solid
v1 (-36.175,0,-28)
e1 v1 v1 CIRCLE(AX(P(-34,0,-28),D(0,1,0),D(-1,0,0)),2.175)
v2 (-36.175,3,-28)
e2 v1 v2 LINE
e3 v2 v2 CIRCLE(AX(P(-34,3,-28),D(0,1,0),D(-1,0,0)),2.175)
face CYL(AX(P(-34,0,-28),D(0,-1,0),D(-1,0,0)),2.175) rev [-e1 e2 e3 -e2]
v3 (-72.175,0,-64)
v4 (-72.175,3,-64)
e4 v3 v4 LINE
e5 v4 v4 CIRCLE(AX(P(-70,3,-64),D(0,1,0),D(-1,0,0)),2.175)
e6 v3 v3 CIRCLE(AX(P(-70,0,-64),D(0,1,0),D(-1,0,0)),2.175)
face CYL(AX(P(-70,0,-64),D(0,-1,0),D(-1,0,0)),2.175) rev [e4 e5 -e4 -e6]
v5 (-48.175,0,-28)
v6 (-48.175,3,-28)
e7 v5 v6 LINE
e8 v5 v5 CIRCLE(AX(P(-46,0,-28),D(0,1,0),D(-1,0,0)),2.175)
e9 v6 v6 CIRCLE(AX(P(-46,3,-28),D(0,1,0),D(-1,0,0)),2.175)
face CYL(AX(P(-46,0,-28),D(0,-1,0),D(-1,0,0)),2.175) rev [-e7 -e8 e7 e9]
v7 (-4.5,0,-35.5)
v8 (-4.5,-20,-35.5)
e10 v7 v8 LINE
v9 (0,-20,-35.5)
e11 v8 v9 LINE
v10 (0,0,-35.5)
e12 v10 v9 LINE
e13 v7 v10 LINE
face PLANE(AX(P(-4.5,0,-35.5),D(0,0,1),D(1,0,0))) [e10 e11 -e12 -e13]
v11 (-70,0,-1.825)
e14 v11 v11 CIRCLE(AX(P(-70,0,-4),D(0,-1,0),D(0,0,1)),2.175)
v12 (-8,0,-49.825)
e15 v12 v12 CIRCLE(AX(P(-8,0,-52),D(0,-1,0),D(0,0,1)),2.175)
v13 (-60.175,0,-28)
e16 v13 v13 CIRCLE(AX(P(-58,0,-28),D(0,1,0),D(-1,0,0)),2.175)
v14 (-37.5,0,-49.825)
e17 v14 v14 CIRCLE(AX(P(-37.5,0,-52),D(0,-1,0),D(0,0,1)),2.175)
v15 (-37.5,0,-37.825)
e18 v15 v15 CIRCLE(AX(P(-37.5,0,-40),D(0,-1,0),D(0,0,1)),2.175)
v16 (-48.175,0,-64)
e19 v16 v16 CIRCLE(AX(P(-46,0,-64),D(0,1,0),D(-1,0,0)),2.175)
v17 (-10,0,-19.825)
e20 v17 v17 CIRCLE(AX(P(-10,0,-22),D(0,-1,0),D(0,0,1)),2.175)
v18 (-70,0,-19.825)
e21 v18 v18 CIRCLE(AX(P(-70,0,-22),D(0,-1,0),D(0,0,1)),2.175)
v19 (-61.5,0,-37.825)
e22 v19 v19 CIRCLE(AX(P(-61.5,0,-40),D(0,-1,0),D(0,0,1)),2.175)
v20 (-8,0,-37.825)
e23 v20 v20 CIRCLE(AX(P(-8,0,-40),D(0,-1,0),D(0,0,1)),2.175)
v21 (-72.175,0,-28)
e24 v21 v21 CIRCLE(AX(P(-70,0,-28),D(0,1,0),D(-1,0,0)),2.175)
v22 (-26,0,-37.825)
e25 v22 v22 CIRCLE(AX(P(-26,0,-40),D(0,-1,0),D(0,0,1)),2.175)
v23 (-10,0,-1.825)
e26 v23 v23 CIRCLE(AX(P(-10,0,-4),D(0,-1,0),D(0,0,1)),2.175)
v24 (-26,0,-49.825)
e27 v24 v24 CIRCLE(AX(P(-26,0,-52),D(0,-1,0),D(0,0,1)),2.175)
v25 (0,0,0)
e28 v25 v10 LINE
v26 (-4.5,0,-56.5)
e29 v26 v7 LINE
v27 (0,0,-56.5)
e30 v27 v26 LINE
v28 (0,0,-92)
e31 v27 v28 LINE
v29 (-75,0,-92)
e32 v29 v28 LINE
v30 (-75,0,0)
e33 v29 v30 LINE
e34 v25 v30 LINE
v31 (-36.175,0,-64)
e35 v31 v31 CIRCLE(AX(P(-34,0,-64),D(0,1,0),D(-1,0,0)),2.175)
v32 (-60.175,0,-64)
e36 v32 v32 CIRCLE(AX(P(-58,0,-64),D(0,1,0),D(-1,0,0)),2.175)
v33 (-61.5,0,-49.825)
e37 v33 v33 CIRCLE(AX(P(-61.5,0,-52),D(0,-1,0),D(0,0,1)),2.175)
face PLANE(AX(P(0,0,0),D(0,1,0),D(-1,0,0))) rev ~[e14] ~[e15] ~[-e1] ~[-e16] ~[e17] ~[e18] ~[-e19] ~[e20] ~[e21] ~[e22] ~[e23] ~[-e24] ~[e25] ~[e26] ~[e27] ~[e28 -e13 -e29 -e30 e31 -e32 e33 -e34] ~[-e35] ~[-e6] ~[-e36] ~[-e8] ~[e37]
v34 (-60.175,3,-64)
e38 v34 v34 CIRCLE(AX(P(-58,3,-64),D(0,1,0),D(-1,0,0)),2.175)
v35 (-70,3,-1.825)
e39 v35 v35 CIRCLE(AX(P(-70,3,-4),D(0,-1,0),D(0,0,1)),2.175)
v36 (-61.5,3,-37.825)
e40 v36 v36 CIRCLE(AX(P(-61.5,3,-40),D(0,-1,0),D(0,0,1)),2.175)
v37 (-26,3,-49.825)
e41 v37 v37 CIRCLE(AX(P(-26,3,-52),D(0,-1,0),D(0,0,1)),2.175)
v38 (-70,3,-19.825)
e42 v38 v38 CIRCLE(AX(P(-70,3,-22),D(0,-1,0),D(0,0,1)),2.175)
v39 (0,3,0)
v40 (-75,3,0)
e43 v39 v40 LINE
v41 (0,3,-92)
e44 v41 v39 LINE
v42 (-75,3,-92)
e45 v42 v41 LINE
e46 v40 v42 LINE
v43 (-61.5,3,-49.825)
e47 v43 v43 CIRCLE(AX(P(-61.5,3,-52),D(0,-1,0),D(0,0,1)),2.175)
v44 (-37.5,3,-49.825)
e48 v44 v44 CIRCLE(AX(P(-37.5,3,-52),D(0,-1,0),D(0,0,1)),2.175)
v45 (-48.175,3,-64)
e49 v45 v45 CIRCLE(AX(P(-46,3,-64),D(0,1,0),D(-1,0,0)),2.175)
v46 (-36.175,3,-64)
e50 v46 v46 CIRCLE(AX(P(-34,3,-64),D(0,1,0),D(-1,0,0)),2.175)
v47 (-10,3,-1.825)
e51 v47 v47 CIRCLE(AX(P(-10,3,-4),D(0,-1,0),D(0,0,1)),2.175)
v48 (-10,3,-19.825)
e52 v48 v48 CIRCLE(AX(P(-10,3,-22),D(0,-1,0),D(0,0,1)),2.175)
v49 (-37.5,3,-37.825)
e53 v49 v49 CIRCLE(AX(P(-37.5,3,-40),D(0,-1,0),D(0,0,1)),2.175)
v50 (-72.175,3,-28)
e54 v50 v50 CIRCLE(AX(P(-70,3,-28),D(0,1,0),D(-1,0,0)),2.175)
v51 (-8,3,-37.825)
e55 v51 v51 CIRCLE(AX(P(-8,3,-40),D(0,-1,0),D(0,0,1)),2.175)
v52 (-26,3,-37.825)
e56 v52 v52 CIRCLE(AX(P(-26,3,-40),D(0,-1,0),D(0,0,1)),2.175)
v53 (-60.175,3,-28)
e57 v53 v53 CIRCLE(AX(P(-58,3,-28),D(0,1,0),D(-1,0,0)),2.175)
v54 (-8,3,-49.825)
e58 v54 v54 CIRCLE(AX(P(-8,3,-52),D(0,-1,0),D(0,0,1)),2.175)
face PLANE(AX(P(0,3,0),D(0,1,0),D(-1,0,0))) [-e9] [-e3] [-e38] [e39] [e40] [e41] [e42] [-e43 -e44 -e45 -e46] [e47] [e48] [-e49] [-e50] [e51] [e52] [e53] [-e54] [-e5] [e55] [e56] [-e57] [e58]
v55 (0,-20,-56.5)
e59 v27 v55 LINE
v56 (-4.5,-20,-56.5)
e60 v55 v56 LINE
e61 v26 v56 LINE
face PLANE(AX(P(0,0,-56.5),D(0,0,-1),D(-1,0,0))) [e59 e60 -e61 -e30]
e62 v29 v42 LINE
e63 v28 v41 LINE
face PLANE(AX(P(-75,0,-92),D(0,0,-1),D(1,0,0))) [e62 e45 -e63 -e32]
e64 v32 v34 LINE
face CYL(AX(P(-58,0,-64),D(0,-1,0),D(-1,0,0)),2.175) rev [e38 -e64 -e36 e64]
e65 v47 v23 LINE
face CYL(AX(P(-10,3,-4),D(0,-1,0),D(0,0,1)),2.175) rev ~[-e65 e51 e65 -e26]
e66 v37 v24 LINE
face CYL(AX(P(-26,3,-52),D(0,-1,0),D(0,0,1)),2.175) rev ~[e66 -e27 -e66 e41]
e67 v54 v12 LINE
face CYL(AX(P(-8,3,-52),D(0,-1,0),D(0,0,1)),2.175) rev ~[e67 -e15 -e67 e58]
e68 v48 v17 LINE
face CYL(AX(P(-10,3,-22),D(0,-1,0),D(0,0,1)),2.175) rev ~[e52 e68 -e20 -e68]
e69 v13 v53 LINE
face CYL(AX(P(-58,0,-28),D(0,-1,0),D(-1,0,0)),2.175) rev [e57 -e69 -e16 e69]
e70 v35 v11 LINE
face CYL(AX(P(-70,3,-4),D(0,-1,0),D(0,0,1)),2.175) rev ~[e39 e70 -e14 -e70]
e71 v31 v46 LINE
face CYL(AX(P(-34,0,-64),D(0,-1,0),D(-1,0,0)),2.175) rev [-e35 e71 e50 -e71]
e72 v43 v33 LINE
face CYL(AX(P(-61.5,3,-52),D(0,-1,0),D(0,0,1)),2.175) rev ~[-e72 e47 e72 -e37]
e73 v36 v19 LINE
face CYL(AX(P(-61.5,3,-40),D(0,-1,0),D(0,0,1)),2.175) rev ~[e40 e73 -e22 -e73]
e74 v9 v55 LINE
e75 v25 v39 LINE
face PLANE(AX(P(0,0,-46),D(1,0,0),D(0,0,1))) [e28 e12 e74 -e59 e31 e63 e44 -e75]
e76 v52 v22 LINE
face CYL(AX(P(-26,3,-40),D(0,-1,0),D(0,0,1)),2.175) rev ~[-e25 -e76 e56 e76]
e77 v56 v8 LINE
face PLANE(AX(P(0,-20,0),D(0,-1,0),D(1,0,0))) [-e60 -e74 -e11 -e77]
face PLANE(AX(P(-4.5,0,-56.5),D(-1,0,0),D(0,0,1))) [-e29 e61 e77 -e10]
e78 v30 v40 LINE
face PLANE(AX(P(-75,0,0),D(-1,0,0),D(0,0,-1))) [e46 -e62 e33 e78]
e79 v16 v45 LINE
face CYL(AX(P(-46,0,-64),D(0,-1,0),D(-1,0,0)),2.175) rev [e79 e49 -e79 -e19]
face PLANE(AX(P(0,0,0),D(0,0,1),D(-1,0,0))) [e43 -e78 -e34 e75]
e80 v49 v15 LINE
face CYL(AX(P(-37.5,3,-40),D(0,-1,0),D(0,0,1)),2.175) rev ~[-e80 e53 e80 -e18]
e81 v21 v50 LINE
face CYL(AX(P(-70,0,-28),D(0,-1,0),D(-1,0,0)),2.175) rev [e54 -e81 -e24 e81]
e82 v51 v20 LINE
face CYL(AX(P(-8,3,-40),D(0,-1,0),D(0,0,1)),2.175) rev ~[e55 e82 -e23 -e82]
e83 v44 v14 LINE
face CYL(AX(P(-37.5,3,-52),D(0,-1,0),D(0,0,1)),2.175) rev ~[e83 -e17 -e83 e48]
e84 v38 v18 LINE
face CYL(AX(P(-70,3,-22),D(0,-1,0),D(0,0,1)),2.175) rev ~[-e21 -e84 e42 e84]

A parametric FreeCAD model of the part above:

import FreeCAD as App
import Part
import Sketcher

V = App.Vector


def add_polygon(sketch, points):
    """Adds a closed chain of lines whose ends are joined by coincident constraints."""
    first, n = sketch.GeometryCount, len(points)
    for a, b in zip(points, points[1:] + points[:1]):
        sketch.addGeometry(Part.LineSegment(App.Vector(*a, 0), App.Vector(*b, 0)), False)
    for i in range(n):
        sketch.addConstraint(Sketcher.Constraint("Coincident", first + i, 2, first + (i + 1) % n, 1))

doc = App.newDocument("Part")
body = doc.addObject("PartDesign::Body", "Body")

# Sketch on XZ plane
sketch1 = doc.addObject("Sketcher::SketchObject", "Sketch")
body.addObject(sketch1)
sketch1.AttachmentSupport = (doc.XZ_Plane, [""])
sketch1.MapMode = "FlatFace"
add_polygon(sketch1, [(-75, 0), (0, 0), (0, -92), (-75, -92)])  # lines 0-3
sketch1.addGeometry(Part.Circle(V(-34, -28, 0), V(0, 0, 1), 2.2), False)  # 4
sketch1.addGeometry(Part.Circle(V(-46, -28, 0), V(0, 0, 1), 2.2), False)  # 5
sketch1.addGeometry(Part.Circle(V(-58, -28, 0), V(0, 0, 1), 2.2), False)  # 6
sketch1.addGeometry(Part.Circle(V(-70, -28, 0), V(0, 0, 1), 2.2), False)  # 7
sketch1.addGeometry(Part.Circle(V(-70, -64, 0), V(0, 0, 1), 2.2), False)  # 8
sketch1.addGeometry(Part.Circle(V(-34, -64, 0), V(0, 0, 1), 2.2), False)  # 9
sketch1.addGeometry(Part.Circle(V(-46, -64, 0), V(0, 0, 1), 2.2), False)  # 10
sketch1.addGeometry(Part.Circle(V(-58, -64, 0), V(0, 0, 1), 2.2), False)  # 11
sketch1.addConstraint(Sketcher.Constraint("Horizontal", 0))
sketch1.addConstraint(Sketcher.Constraint("Vertical", 1))
sketch1.addConstraint(Sketcher.Constraint("Horizontal", 2))
sketch1.addConstraint(Sketcher.Constraint("Vertical", 3))
sketch1.addConstraint(Sketcher.Constraint("Coincident", 0, 2, -1, 1))
sketch1.addConstraint(Sketcher.Constraint("Equal", 4, 5))
sketch1.addConstraint(Sketcher.Constraint("Equal", 5, 6))
sketch1.addConstraint(Sketcher.Constraint("Equal", 6, 7))
sketch1.addConstraint(Sketcher.Constraint("Equal", 7, 8))
sketch1.addConstraint(Sketcher.Constraint("Equal", 8, 9))
sketch1.addConstraint(Sketcher.Constraint("Equal", 9, 10))
sketch1.addConstraint(Sketcher.Constraint("Equal", 10, 11))
sketch1.addConstraint(Sketcher.Constraint("Horizontal", 4, 3, 5, 3))
sketch1.addConstraint(Sketcher.Constraint("Horizontal", 5, 3, 6, 3))
sketch1.addConstraint(Sketcher.Constraint("Horizontal", 6, 3, 7, 3))
sketch1.addConstraint(Sketcher.Constraint("Horizontal", 8, 3, 9, 3))
sketch1.addConstraint(Sketcher.Constraint("Horizontal", 9, 3, 10, 3))
sketch1.addConstraint(Sketcher.Constraint("Horizontal", 10, 3, 11, 3))
sketch1.addConstraint(Sketcher.Constraint("Vertical", 7, 3, 8, 3))
sketch1.addConstraint(Sketcher.Constraint("Vertical", 4, 3, 9, 3))
sketch1.addConstraint(Sketcher.Constraint("Vertical", 5, 3, 10, 3))
sketch1.addConstraint(Sketcher.Constraint("Vertical", 6, 3, 11, 3))
sketch1.addConstraint(Sketcher.Constraint("Diameter", 4, 4.35))
sketch1.addConstraint(Sketcher.Constraint("DistanceX", 0, 1, 0, 2, 75.0))
sketch1.addConstraint(Sketcher.Constraint("DistanceY", 1, 2, 1, 1, 92.0))
sketch1.addConstraint(Sketcher.Constraint("DistanceX", 5, 3, 4, 3, 12.0))
sketch1.addConstraint(Sketcher.Constraint("DistanceX", 6, 3, 5, 3, 12.0))
sketch1.addConstraint(Sketcher.Constraint("DistanceX", 7, 3, 6, 3, 12.0))
sketch1.addConstraint(Sketcher.Constraint("DistanceX", 4, 3, -1, 1, 34.0))
sketch1.addConstraint(Sketcher.Constraint("DistanceY", 4, 3, -1, 1, 28.0))
sketch1.addConstraint(Sketcher.Constraint("DistanceY", 8, 3, -1, 1, 64.0))
pad1 = doc.addObject("PartDesign::Pad", "Pad")
body.addObject(pad1)
pad1.Profile = sketch1
pad1.Length = 3
pad1.Reversed = True

# Sketch on XZ plane
sketch2 = doc.addObject("Sketcher::SketchObject", "Sketch001")
body.addObject(sketch2)
sketch2.AttachmentSupport = (doc.XZ_Plane, [""])
sketch2.MapMode = "FlatFace"
add_polygon(sketch2, [(0, -56.5), (0, -35.5), (-4.5, -35.5), (-4.5, -56.5)])  # lines 0-3
sketch2.addConstraint(Sketcher.Constraint("Vertical", 0))
sketch2.addConstraint(Sketcher.Constraint("Horizontal", 1))
sketch2.addConstraint(Sketcher.Constraint("Vertical", 2))
sketch2.addConstraint(Sketcher.Constraint("Horizontal", 3))
sketch2.addConstraint(Sketcher.Constraint("PointOnObject", 0, 2, -2))
sketch2.addConstraint(Sketcher.Constraint("DistanceY", 0, 1, 0, 2, 21.0))
sketch2.addConstraint(Sketcher.Constraint("DistanceX", 1, 2, 1, 1, 4.5))
sketch2.addConstraint(Sketcher.Constraint("DistanceY", 0, 2, -1, 1, 35.5))
pad2 = doc.addObject("PartDesign::Pad", "Pad001")
body.addObject(pad2)
pad2.Profile = sketch2
pad2.Length = 20

# Sketch on XZ plane
sketch3 = doc.addObject("Sketcher::SketchObject", "Sketch002")
body.addObject(sketch3)
sketch3.AttachmentSupport = (doc.XZ_Plane, [""])
sketch3.MapMode = "FlatFace"
sketch3.AttachmentOffset = App.Placement(V(0, 0, -3), App.Rotation())
sketch3.addGeometry(Part.Circle(V(-70, -4, 0), V(0, 0, 1), 2.2), False)
sketch3.addGeometry(Part.Circle(V(-70, -22, 0), V(0, 0, 1), 2.2), False)
sketch3.addGeometry(Part.Circle(V(-61.5, -40, 0), V(0, 0, 1), 2.2), False)
sketch3.addGeometry(Part.Circle(V(-61.5, -52, 0), V(0, 0, 1), 2.2), False)
sketch3.addGeometry(Part.Circle(V(-37.5, -52, 0), V(0, 0, 1), 2.2), False)
sketch3.addGeometry(Part.Circle(V(-37.5, -40, 0), V(0, 0, 1), 2.2), False)
sketch3.addGeometry(Part.Circle(V(-26, -40, 0), V(0, 0, 1), 2.2), False)
sketch3.addGeometry(Part.Circle(V(-10, -22, 0), V(0, 0, 1), 2.2), False)
sketch3.addGeometry(Part.Circle(V(-10, -4, 0), V(0, 0, 1), 2.2), False)
sketch3.addGeometry(Part.Circle(V(-8, -40, 0), V(0, 0, 1), 2.2), False)
sketch3.addGeometry(Part.Circle(V(-26, -52, 0), V(0, 0, 1), 2.2), False)
sketch3.addGeometry(Part.Circle(V(-8, -52, 0), V(0, 0, 1), 2.2), False)
sketch3.addConstraint(Sketcher.Constraint("Equal", 0, 1))
sketch3.addConstraint(Sketcher.Constraint("Equal", 1, 2))
sketch3.addConstraint(Sketcher.Constraint("Equal", 2, 3))
sketch3.addConstraint(Sketcher.Constraint("Equal", 3, 4))
sketch3.addConstraint(Sketcher.Constraint("Equal", 4, 5))
sketch3.addConstraint(Sketcher.Constraint("Equal", 5, 6))
sketch3.addConstraint(Sketcher.Constraint("Equal", 6, 7))
sketch3.addConstraint(Sketcher.Constraint("Equal", 7, 8))
sketch3.addConstraint(Sketcher.Constraint("Equal", 8, 9))
sketch3.addConstraint(Sketcher.Constraint("Equal", 9, 10))
sketch3.addConstraint(Sketcher.Constraint("Equal", 10, 11))
sketch3.addConstraint(Sketcher.Constraint("Horizontal", 3, 3, 4, 3))
sketch3.addConstraint(Sketcher.Constraint("Horizontal", 2, 3, 5, 3))
sketch3.addConstraint(Sketcher.Constraint("Horizontal", 5, 3, 6, 3))
sketch3.addConstraint(Sketcher.Constraint("Horizontal", 1, 3, 7, 3))
sketch3.addConstraint(Sketcher.Constraint("Horizontal", 0, 3, 8, 3))
sketch3.addConstraint(Sketcher.Constraint("Horizontal", 6, 3, 9, 3))
sketch3.addConstraint(Sketcher.Constraint("Horizontal", 4, 3, 10, 3))
sketch3.addConstraint(Sketcher.Constraint("Horizontal", 10, 3, 11, 3))
sketch3.addConstraint(Sketcher.Constraint("Vertical", 0, 3, 1, 3))
sketch3.addConstraint(Sketcher.Constraint("Vertical", 2, 3, 3, 3))
sketch3.addConstraint(Sketcher.Constraint("Vertical", 4, 3, 5, 3))
sketch3.addConstraint(Sketcher.Constraint("Vertical", 7, 3, 8, 3))
sketch3.addConstraint(Sketcher.Constraint("Vertical", 6, 3, 10, 3))
sketch3.addConstraint(Sketcher.Constraint("Vertical", 9, 3, 11, 3))
sketch3.addConstraint(Sketcher.Constraint("Diameter", 0, 4.35))
sketch3.addConstraint(Sketcher.Constraint("DistanceX", 0, 3, -1, 1, 70.0))
sketch3.addConstraint(Sketcher.Constraint("DistanceY", 0, 3, -1, 1, 4.0))
sketch3.addConstraint(Sketcher.Constraint("DistanceY", 1, 3, -1, 1, 22.0))
sketch3.addConstraint(Sketcher.Constraint("DistanceY", 2, 3, -1, 1, 40.0))
sketch3.addConstraint(Sketcher.Constraint("DistanceY", 3, 3, -1, 1, 52.0))
sketch3.addConstraint(Sketcher.Constraint("DistanceX", 6, 3, -1, 1, 26.0))
sketch3.addConstraint(Sketcher.Constraint("DistanceX", 7, 3, -1, 1, 10.0))
sketch3.addConstraint(Sketcher.Constraint("DistanceX", 9, 3, -1, 1, 8.0))
sketch3.addConstraint(Sketcher.Constraint("DistanceX", 3, 3, 4, 3, 24.0))
sketch3.addConstraint(Sketcher.Constraint("DistanceX", 2, 3, -1, 1, 61.5))
doc.recompute()
hole = doc.addObject("PartDesign::Hole", "Hole")
body.addObject(hole)
hole.Profile = sketch3
hole.ThreadType = "None"
hole.Diameter = 4.35
hole.DepthType = "ThroughAll"
hole.Reversed = True

doc.recompute()
